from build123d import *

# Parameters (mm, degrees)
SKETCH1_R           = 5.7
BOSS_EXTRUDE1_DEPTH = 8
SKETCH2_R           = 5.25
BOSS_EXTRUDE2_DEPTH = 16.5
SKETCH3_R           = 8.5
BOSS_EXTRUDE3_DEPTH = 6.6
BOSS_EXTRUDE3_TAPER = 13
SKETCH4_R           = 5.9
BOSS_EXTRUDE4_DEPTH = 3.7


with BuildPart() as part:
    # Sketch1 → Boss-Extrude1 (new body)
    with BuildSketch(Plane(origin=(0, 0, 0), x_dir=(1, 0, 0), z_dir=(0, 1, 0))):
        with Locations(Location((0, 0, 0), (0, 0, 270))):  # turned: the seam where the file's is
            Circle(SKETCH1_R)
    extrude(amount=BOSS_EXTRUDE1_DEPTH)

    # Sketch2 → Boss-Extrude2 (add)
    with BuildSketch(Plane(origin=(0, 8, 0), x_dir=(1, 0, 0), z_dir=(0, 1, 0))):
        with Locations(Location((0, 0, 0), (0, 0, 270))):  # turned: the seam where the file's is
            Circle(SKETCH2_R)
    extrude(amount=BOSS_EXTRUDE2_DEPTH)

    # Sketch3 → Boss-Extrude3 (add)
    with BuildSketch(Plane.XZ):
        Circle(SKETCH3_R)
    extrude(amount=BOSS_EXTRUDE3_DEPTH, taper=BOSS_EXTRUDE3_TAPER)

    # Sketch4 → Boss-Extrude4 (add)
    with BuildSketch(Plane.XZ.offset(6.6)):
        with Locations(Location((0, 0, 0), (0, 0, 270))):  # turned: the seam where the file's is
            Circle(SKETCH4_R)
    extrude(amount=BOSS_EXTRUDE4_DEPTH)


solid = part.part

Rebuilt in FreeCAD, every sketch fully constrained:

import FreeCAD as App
import Part
import Sketcher
from FreeCAD import Vector

doc = App.newDocument("Part")
body = doc.addObject("PartDesign::Body", "Body")

sketch1 = doc.addObject("Sketcher::SketchObject", "Sketch")
body.addObject(sketch1)
sketch1.AttachmentSupport = (doc.XZ_Plane, [""])
sketch1.MapMode = "FlatFace"
sketch1.addGeometry(Part.Circle(Vector(0, 0, 0), Vector(0, 0, 1), 6), False)
sketch1.addConstraint([
    Sketcher.Constraint("Coincident", 0, 3, -1, 1),
    Sketcher.Constraint("Diameter", 0, 11.4),
])
pad1 = doc.addObject("PartDesign::Pad", "Pad")
body.addObject(pad1)
pad1.Profile = sketch1
pad1.Length = 8
pad1.Reversed = True

sketch2 = doc.addObject("Sketcher::SketchObject", "Sketch001")
body.addObject(sketch2)
sketch2.AttachmentSupport = (doc.XZ_Plane, [""])
sketch2.MapMode = "FlatFace"
sketch2.AttachmentOffset = App.Placement(Vector(0, 0, -8), App.Rotation())
sketch2.addGeometry(Part.Circle(Vector(0, 0, 0), Vector(0, 0, 1), 5), False)
sketch2.addConstraint([
    Sketcher.Constraint("Coincident", 0, 3, -1, 1),
    Sketcher.Constraint("Diameter", 0, 10.5),
])
pad2 = doc.addObject("PartDesign::Pad", "Pad001")
body.addObject(pad2)
pad2.Profile = sketch2
pad2.Length = 16.5
pad2.Reversed = True

sketch3 = doc.addObject("Sketcher::SketchObject", "Sketch002")
body.addObject(sketch3)
sketch3.AttachmentSupport = (doc.XZ_Plane, [""])
sketch3.MapMode = "FlatFace"
sketch3.addGeometry(Part.Circle(Vector(0, 0, 0), Vector(0, 0, 1), 8), False)
sketch3.addConstraint([
    Sketcher.Constraint("Coincident", 0, 3, -1, 1),
    Sketcher.Constraint("Diameter", 0, 17.0),
])
pad3 = doc.addObject("PartDesign::Pad", "Pad002")
body.addObject(pad3)
pad3.Profile = sketch3
pad3.Length = 6.6
pad3.TaperAngle = -13

sketch4 = doc.addObject("Sketcher::SketchObject", "Sketch003")
body.addObject(sketch4)
sketch4.AttachmentSupport = (doc.XZ_Plane, [""])
sketch4.MapMode = "FlatFace"
sketch4.AttachmentOffset = App.Placement(Vector(0, 0, 6.6), App.Rotation())
sketch4.addGeometry(Part.Circle(Vector(0, 0, 0), Vector(0, 0, 1), 6), False)
sketch4.addConstraint([
    Sketcher.Constraint("Coincident", 0, 3, -1, 1),
    Sketcher.Constraint("Diameter", 0, 11.8),
])
pad4 = doc.addObject("PartDesign::Pad", "Pad003")
body.addObject(pad4)
pad4.Profile = sketch4
pad4.Length = 3.7

doc.recompute()
